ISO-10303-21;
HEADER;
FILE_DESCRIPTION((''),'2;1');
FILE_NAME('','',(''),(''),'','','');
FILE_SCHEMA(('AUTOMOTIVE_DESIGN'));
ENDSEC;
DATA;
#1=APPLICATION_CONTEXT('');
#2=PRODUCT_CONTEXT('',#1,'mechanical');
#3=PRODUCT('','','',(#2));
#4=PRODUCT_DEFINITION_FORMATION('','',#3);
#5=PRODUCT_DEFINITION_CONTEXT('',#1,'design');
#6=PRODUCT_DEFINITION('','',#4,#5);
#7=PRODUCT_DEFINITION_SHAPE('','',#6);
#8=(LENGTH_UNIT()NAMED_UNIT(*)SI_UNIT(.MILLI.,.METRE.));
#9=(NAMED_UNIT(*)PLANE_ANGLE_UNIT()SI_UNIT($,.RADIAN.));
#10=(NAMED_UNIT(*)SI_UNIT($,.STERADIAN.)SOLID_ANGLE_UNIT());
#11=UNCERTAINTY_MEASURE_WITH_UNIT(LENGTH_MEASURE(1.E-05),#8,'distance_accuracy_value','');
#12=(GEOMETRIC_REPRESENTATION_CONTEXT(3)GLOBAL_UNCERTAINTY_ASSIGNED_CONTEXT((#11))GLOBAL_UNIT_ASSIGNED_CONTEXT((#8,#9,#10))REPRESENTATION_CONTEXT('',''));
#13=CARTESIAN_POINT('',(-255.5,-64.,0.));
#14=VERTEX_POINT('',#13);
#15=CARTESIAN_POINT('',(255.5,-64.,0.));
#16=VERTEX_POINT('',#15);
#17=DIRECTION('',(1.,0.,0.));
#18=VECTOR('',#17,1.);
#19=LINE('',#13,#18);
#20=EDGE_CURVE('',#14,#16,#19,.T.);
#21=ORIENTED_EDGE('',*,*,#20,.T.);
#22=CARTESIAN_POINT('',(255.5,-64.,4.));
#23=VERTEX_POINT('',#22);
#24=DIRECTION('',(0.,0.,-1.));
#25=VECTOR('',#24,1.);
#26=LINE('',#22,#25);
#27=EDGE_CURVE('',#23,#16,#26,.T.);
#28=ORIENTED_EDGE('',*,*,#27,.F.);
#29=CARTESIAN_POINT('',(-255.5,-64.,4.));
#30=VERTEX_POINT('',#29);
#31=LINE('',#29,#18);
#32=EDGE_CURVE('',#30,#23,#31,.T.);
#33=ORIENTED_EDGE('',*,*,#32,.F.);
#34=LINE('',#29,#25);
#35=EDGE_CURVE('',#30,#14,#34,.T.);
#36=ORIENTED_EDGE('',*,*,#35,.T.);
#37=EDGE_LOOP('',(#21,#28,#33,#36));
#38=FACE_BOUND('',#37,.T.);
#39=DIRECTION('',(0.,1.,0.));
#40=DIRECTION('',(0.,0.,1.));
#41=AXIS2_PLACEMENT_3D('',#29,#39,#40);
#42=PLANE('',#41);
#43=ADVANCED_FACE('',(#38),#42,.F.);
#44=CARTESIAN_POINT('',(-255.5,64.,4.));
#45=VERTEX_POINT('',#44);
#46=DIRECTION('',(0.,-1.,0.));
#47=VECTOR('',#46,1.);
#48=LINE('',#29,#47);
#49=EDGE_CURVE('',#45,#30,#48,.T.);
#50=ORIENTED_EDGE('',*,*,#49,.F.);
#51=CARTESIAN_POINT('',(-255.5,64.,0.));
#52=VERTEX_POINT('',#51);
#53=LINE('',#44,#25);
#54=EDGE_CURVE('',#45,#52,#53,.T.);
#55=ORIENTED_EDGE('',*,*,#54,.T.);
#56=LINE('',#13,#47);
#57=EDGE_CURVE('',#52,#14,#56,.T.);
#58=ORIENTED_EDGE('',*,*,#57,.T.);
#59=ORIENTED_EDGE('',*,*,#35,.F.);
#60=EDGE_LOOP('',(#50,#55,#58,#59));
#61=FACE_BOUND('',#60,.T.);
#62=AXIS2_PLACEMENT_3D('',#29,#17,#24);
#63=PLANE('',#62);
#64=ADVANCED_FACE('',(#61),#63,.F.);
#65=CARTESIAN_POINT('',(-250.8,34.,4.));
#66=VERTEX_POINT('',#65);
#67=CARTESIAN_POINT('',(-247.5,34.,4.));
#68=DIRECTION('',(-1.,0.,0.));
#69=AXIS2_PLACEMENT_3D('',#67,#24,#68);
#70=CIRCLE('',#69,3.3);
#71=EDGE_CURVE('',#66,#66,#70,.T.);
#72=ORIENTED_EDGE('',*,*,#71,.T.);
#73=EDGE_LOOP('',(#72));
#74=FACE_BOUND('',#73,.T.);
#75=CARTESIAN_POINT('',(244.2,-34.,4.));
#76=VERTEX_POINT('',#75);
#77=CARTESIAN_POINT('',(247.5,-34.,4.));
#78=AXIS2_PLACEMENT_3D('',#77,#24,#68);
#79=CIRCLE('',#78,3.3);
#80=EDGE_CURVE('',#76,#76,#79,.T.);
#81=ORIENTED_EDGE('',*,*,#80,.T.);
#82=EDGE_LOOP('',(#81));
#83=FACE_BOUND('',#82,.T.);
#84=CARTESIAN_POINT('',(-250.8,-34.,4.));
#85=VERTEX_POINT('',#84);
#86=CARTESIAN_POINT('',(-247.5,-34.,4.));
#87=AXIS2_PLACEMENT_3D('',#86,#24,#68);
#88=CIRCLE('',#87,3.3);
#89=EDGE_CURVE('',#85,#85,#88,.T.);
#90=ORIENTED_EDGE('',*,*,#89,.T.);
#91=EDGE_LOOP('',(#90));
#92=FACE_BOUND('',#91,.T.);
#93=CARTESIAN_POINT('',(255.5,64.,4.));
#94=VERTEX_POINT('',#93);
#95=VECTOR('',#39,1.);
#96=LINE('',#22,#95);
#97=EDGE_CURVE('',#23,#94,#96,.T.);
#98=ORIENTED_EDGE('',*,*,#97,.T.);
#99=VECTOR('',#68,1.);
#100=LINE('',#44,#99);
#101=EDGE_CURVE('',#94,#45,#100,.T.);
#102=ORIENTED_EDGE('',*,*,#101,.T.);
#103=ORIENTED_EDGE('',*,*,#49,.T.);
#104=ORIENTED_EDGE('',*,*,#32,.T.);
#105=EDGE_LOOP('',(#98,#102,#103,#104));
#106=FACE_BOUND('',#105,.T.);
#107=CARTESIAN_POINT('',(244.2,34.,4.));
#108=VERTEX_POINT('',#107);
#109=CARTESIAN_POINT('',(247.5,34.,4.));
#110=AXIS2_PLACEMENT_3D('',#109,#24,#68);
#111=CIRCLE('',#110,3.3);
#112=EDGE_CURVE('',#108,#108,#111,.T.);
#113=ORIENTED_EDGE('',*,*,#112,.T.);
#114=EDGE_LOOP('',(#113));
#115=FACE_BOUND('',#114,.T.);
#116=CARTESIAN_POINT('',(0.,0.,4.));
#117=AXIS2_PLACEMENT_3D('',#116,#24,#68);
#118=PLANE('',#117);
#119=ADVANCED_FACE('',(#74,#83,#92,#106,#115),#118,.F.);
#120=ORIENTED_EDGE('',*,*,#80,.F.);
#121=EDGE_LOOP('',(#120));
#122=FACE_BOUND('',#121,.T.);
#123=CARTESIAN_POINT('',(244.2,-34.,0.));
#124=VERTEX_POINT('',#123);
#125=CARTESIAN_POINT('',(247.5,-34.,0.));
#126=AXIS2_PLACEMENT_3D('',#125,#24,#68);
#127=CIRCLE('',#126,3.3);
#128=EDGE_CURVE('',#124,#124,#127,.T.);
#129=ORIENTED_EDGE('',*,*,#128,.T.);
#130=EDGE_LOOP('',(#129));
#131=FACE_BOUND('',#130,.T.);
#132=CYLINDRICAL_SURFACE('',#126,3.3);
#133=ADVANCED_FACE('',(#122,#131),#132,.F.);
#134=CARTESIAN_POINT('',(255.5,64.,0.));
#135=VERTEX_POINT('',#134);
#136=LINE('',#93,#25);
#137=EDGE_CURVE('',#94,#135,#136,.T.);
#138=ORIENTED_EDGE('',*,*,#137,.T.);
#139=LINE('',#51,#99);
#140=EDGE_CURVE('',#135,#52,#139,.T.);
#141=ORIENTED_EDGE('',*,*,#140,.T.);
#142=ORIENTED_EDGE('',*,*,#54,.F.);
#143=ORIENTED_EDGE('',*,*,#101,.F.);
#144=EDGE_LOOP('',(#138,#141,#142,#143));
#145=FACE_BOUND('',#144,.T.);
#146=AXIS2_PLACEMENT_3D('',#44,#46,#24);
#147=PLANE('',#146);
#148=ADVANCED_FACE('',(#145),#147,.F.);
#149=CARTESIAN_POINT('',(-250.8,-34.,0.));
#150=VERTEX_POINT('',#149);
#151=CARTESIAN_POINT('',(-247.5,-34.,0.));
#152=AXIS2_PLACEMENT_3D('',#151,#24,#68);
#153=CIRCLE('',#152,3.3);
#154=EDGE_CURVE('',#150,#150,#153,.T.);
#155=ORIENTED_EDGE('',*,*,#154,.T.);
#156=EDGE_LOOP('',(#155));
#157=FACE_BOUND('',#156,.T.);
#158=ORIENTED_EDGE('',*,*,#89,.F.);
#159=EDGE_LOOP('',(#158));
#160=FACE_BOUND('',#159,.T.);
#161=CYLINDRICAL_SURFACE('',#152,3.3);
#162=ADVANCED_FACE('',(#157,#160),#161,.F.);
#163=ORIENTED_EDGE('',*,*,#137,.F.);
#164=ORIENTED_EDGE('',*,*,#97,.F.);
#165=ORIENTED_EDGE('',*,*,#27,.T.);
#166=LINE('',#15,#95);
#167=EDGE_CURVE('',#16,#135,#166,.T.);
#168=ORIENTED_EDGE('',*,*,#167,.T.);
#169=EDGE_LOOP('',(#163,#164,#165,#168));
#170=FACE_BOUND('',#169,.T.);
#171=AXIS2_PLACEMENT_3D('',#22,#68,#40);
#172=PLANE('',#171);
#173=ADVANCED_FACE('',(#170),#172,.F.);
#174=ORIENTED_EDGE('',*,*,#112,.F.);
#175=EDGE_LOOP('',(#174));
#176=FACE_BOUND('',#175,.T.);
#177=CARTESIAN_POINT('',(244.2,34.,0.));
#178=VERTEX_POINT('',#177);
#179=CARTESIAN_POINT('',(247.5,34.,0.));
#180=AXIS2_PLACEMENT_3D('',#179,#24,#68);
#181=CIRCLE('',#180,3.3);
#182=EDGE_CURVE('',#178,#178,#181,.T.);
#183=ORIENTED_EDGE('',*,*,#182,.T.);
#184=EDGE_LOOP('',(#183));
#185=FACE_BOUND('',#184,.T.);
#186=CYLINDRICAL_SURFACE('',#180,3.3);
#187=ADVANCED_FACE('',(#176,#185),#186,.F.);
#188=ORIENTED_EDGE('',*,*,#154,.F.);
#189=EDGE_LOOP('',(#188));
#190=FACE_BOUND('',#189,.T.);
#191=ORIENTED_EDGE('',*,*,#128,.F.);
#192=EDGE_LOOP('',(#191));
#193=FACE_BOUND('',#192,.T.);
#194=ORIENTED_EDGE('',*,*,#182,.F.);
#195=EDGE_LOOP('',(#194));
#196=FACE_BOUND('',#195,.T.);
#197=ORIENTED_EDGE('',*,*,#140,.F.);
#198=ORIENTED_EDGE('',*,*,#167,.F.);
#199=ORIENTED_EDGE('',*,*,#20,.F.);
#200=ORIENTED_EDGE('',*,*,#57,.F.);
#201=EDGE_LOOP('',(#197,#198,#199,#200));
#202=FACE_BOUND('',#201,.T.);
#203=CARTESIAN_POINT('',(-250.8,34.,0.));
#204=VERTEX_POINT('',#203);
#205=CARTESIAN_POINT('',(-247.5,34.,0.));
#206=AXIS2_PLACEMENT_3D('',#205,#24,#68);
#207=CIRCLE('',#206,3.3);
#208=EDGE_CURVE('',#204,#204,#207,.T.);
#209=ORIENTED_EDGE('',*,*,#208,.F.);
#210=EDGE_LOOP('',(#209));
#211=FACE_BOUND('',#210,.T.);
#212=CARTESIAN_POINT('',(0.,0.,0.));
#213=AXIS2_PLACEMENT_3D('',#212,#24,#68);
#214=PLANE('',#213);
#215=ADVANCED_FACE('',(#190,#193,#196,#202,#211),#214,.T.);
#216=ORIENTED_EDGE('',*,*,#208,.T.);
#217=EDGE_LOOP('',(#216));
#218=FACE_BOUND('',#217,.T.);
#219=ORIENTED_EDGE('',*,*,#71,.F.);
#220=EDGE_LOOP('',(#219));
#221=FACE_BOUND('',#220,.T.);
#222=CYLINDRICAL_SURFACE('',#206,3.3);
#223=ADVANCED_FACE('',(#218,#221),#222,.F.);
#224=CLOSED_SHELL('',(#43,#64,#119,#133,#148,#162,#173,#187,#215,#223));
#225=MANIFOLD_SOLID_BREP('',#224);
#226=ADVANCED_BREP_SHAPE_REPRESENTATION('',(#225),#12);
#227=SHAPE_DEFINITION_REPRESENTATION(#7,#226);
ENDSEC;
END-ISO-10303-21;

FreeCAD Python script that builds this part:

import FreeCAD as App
import Part
import Sketcher

V = App.Vector
Q = App.Units.Quantity

doc = App.newDocument("Part")
body = doc.addObject("PartDesign::Body", "Body")

sketch1 = body.newObject("Sketcher::SketchObject", "Sketch")
sketch1.AttachmentSupport = (doc.getObject("XY_Plane"), [""])
sketch1.MapMode = "FlatFace"
sketch1.addGeometry([
    Part.LineSegment(V(-256, 64, 0), V(-256, -64, 0)),
    Part.LineSegment(V(-256, -64, 0), V(256, -64, 0)),
    Part.LineSegment(V(256, -64, 0), V(256, 64, 0)),
    Part.LineSegment(V(256, 64, 0), V(-256, 64, 0)),
], False)
sketch1.addConstraint([
    Sketcher.Constraint("Coincident", 0, 2, 1, 1),
    Sketcher.Constraint("Coincident", 1, 2, 2, 1),
    Sketcher.Constraint("Coincident", 2, 2, 3, 1),
    Sketcher.Constraint("Coincident", 3, 2, 0, 1),
    Sketcher.Constraint("Vertical", 0),
    Sketcher.Constraint("Horizontal", 1),
    Sketcher.Constraint("Vertical", 2),
    Sketcher.Constraint("Horizontal", 3),
    Sketcher.Constraint("Symmetric", 0, 2, 2, 2, -1, 1),
    Sketcher.Constraint("DistanceX", 1, 1, 1, 2, Q("511 mm")),
    Sketcher.Constraint("DistanceY", 0, 2, 0, 1, Q("128 mm")),
])
pad1 = body.newObject("PartDesign::Pad", "Pad")
pad1.Profile = sketch1
pad1.Length = 4

sketch2 = body.newObject("Sketcher::SketchObject", "Sketch001")
sketch2.AttachmentSupport = (doc.getObject("XY_Plane"), [""])
sketch2.MapMode = "FlatFace"
sketch2.addGeometry([
    Part.Circle(V(-247.5, 34, 0), V(0, 0, 1), 3.3),
    Part.Circle(V(-247.5, -34, 0), V(0, 0, 1), 3.3),
    Part.Circle(V(247.5, -34, 0), V(0, 0, 1), 3.3),
    Part.Circle(V(247.5, 34, 0), V(0, 0, 1), 3.3),
], False)
sketch2.addConstraint([
    Sketcher.Constraint("Equal", 0, 1),
    Sketcher.Constraint("Equal", 1, 2),
    Sketcher.Constraint("Equal", 2, 3),
    Sketcher.Constraint("Symmetric", 0, 3, 2, 3, -1, 1),
    Sketcher.Constraint("Symmetric", 1, 3, 3, 3, -1, 1),
    Sketcher.Constraint("Symmetric", 1, 3, 2, 3, -2),
    Sketcher.Constraint("Diameter", 0, Q("6.6 mm")),
    Sketcher.Constraint("DistanceY", -1, 1, 0, 3, Q("34 mm")),
    Sketcher.Constraint("DistanceX", 1, 3, 2, 3, Q("495 mm")),
])
doc.recompute()
hole = body.newObject("PartDesign::Hole", "Hole")
hole.Profile = sketch2
hole.ThreadType = "None"
hole.Diameter = 6.6
hole.DepthType = "ThroughAll"
hole.Reversed = True

doc.recompute()
